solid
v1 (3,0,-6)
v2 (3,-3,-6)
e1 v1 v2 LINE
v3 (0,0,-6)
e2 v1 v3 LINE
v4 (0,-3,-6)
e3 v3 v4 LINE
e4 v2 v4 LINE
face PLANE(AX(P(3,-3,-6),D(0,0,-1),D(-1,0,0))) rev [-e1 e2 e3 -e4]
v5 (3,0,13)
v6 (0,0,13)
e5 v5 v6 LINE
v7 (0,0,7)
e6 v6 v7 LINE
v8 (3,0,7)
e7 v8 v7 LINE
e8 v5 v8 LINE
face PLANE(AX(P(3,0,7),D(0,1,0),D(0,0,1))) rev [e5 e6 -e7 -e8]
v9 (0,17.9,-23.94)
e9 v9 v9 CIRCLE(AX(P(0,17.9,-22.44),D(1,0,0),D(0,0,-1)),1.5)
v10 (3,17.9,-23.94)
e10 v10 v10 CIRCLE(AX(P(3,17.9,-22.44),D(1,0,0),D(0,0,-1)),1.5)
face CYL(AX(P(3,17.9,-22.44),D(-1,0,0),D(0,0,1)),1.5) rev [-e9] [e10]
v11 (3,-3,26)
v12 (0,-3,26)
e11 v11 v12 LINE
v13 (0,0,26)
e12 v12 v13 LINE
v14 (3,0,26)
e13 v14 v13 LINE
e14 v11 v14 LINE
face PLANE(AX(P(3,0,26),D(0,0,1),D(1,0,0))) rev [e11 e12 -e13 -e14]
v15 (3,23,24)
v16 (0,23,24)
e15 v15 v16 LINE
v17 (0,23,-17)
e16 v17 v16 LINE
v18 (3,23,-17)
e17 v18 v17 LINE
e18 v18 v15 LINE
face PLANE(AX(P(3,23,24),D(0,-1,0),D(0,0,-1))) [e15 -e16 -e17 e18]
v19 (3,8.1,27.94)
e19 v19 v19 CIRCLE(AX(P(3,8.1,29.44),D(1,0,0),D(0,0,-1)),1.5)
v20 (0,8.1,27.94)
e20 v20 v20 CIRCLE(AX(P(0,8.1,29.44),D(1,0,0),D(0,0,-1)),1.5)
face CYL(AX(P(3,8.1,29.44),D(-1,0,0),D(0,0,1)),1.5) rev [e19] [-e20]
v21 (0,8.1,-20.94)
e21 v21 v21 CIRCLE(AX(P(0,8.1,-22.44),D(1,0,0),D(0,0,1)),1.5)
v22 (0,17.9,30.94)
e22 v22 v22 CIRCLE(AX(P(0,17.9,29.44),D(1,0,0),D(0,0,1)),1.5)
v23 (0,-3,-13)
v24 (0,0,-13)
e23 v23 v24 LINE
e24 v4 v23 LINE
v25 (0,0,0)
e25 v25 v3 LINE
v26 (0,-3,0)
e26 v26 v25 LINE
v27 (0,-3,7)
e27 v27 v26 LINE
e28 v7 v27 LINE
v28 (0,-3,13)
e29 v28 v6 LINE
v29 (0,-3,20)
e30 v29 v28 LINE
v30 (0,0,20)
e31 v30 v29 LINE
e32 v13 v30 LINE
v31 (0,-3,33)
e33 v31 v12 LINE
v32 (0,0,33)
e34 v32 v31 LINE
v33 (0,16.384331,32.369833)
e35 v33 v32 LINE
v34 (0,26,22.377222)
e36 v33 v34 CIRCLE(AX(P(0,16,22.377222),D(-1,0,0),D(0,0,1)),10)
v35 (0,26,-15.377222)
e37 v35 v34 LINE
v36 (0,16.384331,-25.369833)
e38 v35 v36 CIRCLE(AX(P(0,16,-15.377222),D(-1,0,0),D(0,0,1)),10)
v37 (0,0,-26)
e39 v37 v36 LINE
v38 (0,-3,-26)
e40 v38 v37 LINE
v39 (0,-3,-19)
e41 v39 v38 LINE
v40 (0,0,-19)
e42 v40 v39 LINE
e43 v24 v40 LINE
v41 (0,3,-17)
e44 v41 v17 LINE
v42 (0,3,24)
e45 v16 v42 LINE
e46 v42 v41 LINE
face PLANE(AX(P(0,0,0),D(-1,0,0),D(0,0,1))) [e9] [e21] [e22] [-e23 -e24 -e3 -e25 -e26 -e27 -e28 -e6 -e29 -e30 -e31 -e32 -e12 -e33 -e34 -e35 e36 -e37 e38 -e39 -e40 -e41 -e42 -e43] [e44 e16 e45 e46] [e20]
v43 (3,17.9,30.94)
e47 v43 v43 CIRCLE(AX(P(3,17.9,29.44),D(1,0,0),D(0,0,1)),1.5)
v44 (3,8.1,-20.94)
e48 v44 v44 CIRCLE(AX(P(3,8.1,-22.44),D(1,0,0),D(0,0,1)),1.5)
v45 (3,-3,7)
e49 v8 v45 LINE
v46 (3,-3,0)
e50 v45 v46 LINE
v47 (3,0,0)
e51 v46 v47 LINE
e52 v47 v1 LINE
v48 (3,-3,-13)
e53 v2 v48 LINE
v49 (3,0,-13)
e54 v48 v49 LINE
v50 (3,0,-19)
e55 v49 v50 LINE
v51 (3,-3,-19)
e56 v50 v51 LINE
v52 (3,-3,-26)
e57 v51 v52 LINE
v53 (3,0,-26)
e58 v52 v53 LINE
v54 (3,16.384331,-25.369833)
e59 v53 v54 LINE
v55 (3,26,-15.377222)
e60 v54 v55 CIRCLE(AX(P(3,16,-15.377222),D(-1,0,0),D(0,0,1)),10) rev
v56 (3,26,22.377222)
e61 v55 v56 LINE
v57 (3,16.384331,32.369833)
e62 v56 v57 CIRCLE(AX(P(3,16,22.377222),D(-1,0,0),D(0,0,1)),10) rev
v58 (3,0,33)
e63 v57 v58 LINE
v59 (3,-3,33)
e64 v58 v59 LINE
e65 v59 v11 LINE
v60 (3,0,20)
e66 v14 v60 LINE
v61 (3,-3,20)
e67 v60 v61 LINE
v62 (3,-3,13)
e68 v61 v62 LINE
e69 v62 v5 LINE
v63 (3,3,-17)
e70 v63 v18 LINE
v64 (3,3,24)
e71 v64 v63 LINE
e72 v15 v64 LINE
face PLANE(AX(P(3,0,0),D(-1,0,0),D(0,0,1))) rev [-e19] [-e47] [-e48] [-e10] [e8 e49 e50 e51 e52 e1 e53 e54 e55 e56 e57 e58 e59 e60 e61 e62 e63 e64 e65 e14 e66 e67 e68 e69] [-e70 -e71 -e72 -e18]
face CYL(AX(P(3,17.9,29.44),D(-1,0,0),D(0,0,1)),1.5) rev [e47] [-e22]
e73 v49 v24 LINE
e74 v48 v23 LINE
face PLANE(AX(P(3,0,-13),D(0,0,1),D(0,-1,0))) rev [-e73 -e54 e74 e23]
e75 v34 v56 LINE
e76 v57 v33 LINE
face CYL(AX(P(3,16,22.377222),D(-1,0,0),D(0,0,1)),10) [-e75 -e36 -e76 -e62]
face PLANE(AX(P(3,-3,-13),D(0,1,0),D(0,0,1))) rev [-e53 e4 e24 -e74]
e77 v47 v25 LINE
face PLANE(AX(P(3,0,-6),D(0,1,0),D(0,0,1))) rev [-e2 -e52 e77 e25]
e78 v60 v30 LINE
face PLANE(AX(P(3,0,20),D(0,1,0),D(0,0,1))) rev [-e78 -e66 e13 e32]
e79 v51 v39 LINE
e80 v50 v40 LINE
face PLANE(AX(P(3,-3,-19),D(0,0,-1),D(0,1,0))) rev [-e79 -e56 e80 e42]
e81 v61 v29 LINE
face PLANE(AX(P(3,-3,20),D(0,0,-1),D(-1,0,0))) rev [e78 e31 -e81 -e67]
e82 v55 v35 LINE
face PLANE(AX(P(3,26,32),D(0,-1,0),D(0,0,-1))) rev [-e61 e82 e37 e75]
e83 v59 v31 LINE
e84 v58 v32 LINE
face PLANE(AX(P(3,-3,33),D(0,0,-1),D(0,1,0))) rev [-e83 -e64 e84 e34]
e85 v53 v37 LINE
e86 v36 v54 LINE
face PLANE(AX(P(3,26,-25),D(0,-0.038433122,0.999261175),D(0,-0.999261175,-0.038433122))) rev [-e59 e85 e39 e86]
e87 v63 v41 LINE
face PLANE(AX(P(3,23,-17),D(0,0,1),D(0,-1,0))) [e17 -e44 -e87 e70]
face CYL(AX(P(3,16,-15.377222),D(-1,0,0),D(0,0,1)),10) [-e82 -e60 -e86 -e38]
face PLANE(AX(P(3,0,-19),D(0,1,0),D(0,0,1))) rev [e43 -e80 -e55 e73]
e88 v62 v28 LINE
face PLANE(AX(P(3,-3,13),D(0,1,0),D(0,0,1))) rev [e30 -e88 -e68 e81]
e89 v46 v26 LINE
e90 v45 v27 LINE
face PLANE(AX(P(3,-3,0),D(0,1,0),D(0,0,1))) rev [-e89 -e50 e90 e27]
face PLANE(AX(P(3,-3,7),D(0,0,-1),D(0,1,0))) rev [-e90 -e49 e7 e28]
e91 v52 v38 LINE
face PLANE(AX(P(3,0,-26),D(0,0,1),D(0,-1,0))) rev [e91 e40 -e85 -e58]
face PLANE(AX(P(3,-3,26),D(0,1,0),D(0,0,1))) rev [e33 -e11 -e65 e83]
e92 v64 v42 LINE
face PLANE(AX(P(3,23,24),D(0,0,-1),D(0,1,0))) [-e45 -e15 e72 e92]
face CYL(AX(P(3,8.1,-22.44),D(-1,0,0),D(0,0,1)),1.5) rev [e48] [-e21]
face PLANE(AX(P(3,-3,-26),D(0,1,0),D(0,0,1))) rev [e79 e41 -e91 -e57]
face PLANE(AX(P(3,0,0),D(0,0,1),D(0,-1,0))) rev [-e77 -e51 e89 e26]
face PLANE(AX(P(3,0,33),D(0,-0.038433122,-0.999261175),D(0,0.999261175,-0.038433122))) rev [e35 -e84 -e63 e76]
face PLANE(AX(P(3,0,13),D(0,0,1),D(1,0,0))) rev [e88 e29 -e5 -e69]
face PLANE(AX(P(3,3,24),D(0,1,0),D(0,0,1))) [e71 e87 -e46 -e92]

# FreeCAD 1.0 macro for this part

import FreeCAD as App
import Part
import Sketcher
from FreeCAD import Vector


def edges_at(feature, points):
    """Names of the edges that pass closest to the given points."""
    edges = feature.Shape.Edges
    near = lambda p: min(range(len(edges)), key=lambda i: edges[i].distToShape(Part.Vertex(*p))[0])
    return sorted({f"Edge{near(p) + 1}" for p in points})

doc = App.newDocument("Part")
body = doc.addObject("PartDesign::Body", "Body")

# Sketch on YZ plane
sketch1 = doc.addObject("Sketcher::SketchObject", "Sketch")
body.addObject(sketch1)
sketch1.AttachmentSupport = (doc.YZ_Plane, [""])
sketch1.MapMode = "FlatFace"
sketch1.addGeometry([
    Part.LineSegment(Vector(26, 32, 0), Vector(0, 33, 0)),  # 0
    Part.LineSegment(Vector(0, 33, 0), Vector(-3, 33, 0)),  # 1
    Part.LineSegment(Vector(-3, 33, 0), Vector(-3, 26, 0)),  # 2
    Part.LineSegment(Vector(-3, 26, 0), Vector(0, 26, 0)),  # 3
    Part.LineSegment(Vector(0, 26, 0), Vector(0, 20, 0)),  # 4
    Part.LineSegment(Vector(0, 20, 0), Vector(-3, 20, 0)),  # 5
    Part.LineSegment(Vector(-3, 20, 0), Vector(-3, 13, 0)),  # 6
    Part.LineSegment(Vector(-3, 13, 0), Vector(0, 13, 0)),  # 7
    Part.LineSegment(Vector(0, 13, 0), Vector(0, 7, 0)),  # 8
    Part.LineSegment(Vector(0, 7, 0), Vector(-3, 7, 0)),  # 9
    Part.LineSegment(Vector(-3, 7, 0), Vector(-3, 0, 0)),  # 10
    Part.LineSegment(Vector(-3, 0, 0), Vector(0, 0, 0)),  # 11
    Part.LineSegment(Vector(0, 0, 0), Vector(0, -6, 0)),  # 12
    Part.LineSegment(Vector(0, -6, 0), Vector(-3, -6, 0)),  # 13
    Part.LineSegment(Vector(-3, -6, 0), Vector(-3, -13, 0)),  # 14
    Part.LineSegment(Vector(-3, -13, 0), Vector(0, -13, 0)),  # 15
    Part.LineSegment(Vector(0, -13, 0), Vector(0, -19, 0)),  # 16
    Part.LineSegment(Vector(0, -19, 0), Vector(-3, -19, 0)),  # 17
    Part.LineSegment(Vector(-3, -19, 0), Vector(-3, -26, 0)),  # 18
    Part.LineSegment(Vector(-3, -26, 0), Vector(0, -26, 0)),  # 19
    Part.LineSegment(Vector(0, -26, 0), Vector(26, -25, 0)),  # 20
    Part.LineSegment(Vector(26, -25, 0), Vector(26, 32, 0)),  # 21
    Part.Circle(Vector(8.1, -22.4, 0), Vector(0, 0, 1), 1.5),  # 22
    Part.Circle(Vector(8.1, 29.4, 0), Vector(0, 0, 1), 1.5),  # 23
    Part.Circle(Vector(17.9, -22.4, 0), Vector(0, 0, 1), 1.5),  # 24
    Part.LineSegment(Vector(3, 24, 0), Vector(23, 24, 0)),  # 25
    Part.LineSegment(Vector(23, 24, 0), Vector(23, -17, 0)),  # 26
    Part.LineSegment(Vector(23, -17, 0), Vector(3, -17, 0)),  # 27
    Part.LineSegment(Vector(3, -17, 0), Vector(3, 24, 0)),  # 28
    Part.Circle(Vector(17.9, 29.4, 0), Vector(0, 0, 1), 1.5),  # 29
], False)
sketch1.addConstraint([
    Sketcher.Constraint("Coincident", 0, 2, 1, 1),
    Sketcher.Constraint("Coincident", 1, 2, 2, 1),
    Sketcher.Constraint("Coincident", 2, 2, 3, 1),
    Sketcher.Constraint("Coincident", 3, 2, 4, 1),
    Sketcher.Constraint("Coincident", 4, 2, 5, 1),
    Sketcher.Constraint("Coincident", 5, 2, 6, 1),
    Sketcher.Constraint("Coincident", 6, 2, 7, 1),
    Sketcher.Constraint("Coincident", 7, 2, 8, 1),
    Sketcher.Constraint("Coincident", 8, 2, 9, 1),
    Sketcher.Constraint("Coincident", 9, 2, 10, 1),
    Sketcher.Constraint("Coincident", 10, 2, 11, 1),
    Sketcher.Constraint("Coincident", 11, 2, 12, 1),
    Sketcher.Constraint("Coincident", 12, 2, 13, 1),
    Sketcher.Constraint("Coincident", 13, 2, 14, 1),
    Sketcher.Constraint("Coincident", 14, 2, 15, 1),
    Sketcher.Constraint("Coincident", 15, 2, 16, 1),
    Sketcher.Constraint("Coincident", 16, 2, 17, 1),
    Sketcher.Constraint("Coincident", 17, 2, 18, 1),
    Sketcher.Constraint("Coincident", 18, 2, 19, 1),
    Sketcher.Constraint("Coincident", 19, 2, 20, 1),
    Sketcher.Constraint("Coincident", 20, 2, 21, 1),
    Sketcher.Constraint("Coincident", 21, 2, 0, 1),
    Sketcher.Constraint("Coincident", 25, 2, 26, 1),
    Sketcher.Constraint("Coincident", 26, 2, 27, 1),
    Sketcher.Constraint("Coincident", 27, 2, 28, 1),
    Sketcher.Constraint("Coincident", 28, 2, 25, 1),
    Sketcher.Constraint("Horizontal", 1),
    Sketcher.Constraint("Vertical", 2),
    Sketcher.Constraint("Horizontal", 3),
    Sketcher.Constraint("Vertical", 4),
    Sketcher.Constraint("Horizontal", 5),
    Sketcher.Constraint("Vertical", 6),
    Sketcher.Constraint("Horizontal", 7),
    Sketcher.Constraint("Vertical", 8),
    Sketcher.Constraint("Horizontal", 9),
    Sketcher.Constraint("Vertical", 10),
    Sketcher.Constraint("Horizontal", 11),
    Sketcher.Constraint("Vertical", 12),
    Sketcher.Constraint("Horizontal", 13),
    Sketcher.Constraint("Vertical", 14),
    Sketcher.Constraint("Horizontal", 15),
    Sketcher.Constraint("Vertical", 16),
    Sketcher.Constraint("Horizontal", 17),
    Sketcher.Constraint("Vertical", 18),
    Sketcher.Constraint("Horizontal", 19),
    Sketcher.Constraint("Vertical", 21),
    Sketcher.Constraint("Horizontal", 25),
    Sketcher.Constraint("Vertical", 26),
    Sketcher.Constraint("Horizontal", 27),
    Sketcher.Constraint("Vertical", 28),
    Sketcher.Constraint("Coincident", 11, 2, -1, 1),
    Sketcher.Constraint("Equal", 22, 23),
    Sketcher.Constraint("Equal", 23, 24),
    Sketcher.Constraint("Equal", 24, 29),
    Sketcher.Constraint("Symmetric", 7, 2, 15, 2, -1, 1),
    Sketcher.Constraint("Symmetric", 3, 2, 19, 2, -1, 1),
    Sketcher.Constraint("PointOnObject", 0, 2, -2),
    Sketcher.Constraint("PointOnObject", 3, 2, -2),
    Sketcher.Constraint("PointOnObject", 7, 2, -2),
    Sketcher.Constraint("Horizontal", 22, 3, 24, 3),
    Sketcher.Constraint("Horizontal", 23, 3, 29, 3),
    Sketcher.Constraint("Vertical", 22, 3, 23, 3),
    Sketcher.Constraint("Vertical", 24, 3, 29, 3),
    Sketcher.Constraint("Vertical", 2, 2, 5, 2),
    Sketcher.Constraint("Vertical", 6, 2, 9, 2),
    Sketcher.Constraint("Vertical", 10, 2, 13, 2),
    Sketcher.Constraint("Vertical", 14, 2, 17, 2),
    Sketcher.Constraint("Equal", 2, 6),
    Sketcher.Constraint("Equal", 4, 8),
    Sketcher.Constraint("Equal", 6, 10),
    Sketcher.Constraint("Equal", 8, 12),
    Sketcher.Constraint("Equal", 12, 16),
    Sketcher.Constraint("Equal", 0, 20),
    Sketcher.Constraint("Diameter", 22, 3.0),
    Sketcher.Constraint("DistanceX", 1, 2, 1, 1, 3.0),
    Sketcher.Constraint("DistanceX", 25, 1, 25, 2, 20.0),
    Sketcher.Constraint("DistanceY", 2, 2, 2, 1, 7.0),
    Sketcher.Constraint("DistanceY", 4, 2, 4, 1, 6.0),
    Sketcher.Constraint("DistanceY", 21, 1, 21, 2, 57.0),
    Sketcher.Constraint("DistanceY", 26, 2, 26, 1, 41.0),
    Sketcher.Constraint("DistanceX", -1, 1, 20, 2, 26.0),
    Sketcher.Constraint("DistanceX", -1, 1, 25, 2, 23.0),
    Sketcher.Constraint("DistanceY", -1, 1, 25, 2, 24.0),
    Sketcher.Constraint("DistanceX", -1, 1, 22, 3, 8.1),
    Sketcher.Constraint("DistanceX", -1, 1, 24, 3, 17.9),
    Sketcher.Constraint("DistanceY", 22, 3, -1, 1, 22.44),
    Sketcher.Constraint("DistanceY", -1, 1, 23, 3, 29.44),
])
pad1 = doc.addObject("PartDesign::Pad", "Pad")
body.addObject(pad1)
pad1.Profile = sketch1
pad1.Length = 3
doc.recompute()

fillet = doc.addObject("PartDesign::Fillet", "Fillet")
body.addObject(fillet)
fillet.Base = (pad1, edges_at(pad1, [(1.5, 26, 32), (1.5, 26, -25)]))
fillet.Radius = 10

doc.recompute()
